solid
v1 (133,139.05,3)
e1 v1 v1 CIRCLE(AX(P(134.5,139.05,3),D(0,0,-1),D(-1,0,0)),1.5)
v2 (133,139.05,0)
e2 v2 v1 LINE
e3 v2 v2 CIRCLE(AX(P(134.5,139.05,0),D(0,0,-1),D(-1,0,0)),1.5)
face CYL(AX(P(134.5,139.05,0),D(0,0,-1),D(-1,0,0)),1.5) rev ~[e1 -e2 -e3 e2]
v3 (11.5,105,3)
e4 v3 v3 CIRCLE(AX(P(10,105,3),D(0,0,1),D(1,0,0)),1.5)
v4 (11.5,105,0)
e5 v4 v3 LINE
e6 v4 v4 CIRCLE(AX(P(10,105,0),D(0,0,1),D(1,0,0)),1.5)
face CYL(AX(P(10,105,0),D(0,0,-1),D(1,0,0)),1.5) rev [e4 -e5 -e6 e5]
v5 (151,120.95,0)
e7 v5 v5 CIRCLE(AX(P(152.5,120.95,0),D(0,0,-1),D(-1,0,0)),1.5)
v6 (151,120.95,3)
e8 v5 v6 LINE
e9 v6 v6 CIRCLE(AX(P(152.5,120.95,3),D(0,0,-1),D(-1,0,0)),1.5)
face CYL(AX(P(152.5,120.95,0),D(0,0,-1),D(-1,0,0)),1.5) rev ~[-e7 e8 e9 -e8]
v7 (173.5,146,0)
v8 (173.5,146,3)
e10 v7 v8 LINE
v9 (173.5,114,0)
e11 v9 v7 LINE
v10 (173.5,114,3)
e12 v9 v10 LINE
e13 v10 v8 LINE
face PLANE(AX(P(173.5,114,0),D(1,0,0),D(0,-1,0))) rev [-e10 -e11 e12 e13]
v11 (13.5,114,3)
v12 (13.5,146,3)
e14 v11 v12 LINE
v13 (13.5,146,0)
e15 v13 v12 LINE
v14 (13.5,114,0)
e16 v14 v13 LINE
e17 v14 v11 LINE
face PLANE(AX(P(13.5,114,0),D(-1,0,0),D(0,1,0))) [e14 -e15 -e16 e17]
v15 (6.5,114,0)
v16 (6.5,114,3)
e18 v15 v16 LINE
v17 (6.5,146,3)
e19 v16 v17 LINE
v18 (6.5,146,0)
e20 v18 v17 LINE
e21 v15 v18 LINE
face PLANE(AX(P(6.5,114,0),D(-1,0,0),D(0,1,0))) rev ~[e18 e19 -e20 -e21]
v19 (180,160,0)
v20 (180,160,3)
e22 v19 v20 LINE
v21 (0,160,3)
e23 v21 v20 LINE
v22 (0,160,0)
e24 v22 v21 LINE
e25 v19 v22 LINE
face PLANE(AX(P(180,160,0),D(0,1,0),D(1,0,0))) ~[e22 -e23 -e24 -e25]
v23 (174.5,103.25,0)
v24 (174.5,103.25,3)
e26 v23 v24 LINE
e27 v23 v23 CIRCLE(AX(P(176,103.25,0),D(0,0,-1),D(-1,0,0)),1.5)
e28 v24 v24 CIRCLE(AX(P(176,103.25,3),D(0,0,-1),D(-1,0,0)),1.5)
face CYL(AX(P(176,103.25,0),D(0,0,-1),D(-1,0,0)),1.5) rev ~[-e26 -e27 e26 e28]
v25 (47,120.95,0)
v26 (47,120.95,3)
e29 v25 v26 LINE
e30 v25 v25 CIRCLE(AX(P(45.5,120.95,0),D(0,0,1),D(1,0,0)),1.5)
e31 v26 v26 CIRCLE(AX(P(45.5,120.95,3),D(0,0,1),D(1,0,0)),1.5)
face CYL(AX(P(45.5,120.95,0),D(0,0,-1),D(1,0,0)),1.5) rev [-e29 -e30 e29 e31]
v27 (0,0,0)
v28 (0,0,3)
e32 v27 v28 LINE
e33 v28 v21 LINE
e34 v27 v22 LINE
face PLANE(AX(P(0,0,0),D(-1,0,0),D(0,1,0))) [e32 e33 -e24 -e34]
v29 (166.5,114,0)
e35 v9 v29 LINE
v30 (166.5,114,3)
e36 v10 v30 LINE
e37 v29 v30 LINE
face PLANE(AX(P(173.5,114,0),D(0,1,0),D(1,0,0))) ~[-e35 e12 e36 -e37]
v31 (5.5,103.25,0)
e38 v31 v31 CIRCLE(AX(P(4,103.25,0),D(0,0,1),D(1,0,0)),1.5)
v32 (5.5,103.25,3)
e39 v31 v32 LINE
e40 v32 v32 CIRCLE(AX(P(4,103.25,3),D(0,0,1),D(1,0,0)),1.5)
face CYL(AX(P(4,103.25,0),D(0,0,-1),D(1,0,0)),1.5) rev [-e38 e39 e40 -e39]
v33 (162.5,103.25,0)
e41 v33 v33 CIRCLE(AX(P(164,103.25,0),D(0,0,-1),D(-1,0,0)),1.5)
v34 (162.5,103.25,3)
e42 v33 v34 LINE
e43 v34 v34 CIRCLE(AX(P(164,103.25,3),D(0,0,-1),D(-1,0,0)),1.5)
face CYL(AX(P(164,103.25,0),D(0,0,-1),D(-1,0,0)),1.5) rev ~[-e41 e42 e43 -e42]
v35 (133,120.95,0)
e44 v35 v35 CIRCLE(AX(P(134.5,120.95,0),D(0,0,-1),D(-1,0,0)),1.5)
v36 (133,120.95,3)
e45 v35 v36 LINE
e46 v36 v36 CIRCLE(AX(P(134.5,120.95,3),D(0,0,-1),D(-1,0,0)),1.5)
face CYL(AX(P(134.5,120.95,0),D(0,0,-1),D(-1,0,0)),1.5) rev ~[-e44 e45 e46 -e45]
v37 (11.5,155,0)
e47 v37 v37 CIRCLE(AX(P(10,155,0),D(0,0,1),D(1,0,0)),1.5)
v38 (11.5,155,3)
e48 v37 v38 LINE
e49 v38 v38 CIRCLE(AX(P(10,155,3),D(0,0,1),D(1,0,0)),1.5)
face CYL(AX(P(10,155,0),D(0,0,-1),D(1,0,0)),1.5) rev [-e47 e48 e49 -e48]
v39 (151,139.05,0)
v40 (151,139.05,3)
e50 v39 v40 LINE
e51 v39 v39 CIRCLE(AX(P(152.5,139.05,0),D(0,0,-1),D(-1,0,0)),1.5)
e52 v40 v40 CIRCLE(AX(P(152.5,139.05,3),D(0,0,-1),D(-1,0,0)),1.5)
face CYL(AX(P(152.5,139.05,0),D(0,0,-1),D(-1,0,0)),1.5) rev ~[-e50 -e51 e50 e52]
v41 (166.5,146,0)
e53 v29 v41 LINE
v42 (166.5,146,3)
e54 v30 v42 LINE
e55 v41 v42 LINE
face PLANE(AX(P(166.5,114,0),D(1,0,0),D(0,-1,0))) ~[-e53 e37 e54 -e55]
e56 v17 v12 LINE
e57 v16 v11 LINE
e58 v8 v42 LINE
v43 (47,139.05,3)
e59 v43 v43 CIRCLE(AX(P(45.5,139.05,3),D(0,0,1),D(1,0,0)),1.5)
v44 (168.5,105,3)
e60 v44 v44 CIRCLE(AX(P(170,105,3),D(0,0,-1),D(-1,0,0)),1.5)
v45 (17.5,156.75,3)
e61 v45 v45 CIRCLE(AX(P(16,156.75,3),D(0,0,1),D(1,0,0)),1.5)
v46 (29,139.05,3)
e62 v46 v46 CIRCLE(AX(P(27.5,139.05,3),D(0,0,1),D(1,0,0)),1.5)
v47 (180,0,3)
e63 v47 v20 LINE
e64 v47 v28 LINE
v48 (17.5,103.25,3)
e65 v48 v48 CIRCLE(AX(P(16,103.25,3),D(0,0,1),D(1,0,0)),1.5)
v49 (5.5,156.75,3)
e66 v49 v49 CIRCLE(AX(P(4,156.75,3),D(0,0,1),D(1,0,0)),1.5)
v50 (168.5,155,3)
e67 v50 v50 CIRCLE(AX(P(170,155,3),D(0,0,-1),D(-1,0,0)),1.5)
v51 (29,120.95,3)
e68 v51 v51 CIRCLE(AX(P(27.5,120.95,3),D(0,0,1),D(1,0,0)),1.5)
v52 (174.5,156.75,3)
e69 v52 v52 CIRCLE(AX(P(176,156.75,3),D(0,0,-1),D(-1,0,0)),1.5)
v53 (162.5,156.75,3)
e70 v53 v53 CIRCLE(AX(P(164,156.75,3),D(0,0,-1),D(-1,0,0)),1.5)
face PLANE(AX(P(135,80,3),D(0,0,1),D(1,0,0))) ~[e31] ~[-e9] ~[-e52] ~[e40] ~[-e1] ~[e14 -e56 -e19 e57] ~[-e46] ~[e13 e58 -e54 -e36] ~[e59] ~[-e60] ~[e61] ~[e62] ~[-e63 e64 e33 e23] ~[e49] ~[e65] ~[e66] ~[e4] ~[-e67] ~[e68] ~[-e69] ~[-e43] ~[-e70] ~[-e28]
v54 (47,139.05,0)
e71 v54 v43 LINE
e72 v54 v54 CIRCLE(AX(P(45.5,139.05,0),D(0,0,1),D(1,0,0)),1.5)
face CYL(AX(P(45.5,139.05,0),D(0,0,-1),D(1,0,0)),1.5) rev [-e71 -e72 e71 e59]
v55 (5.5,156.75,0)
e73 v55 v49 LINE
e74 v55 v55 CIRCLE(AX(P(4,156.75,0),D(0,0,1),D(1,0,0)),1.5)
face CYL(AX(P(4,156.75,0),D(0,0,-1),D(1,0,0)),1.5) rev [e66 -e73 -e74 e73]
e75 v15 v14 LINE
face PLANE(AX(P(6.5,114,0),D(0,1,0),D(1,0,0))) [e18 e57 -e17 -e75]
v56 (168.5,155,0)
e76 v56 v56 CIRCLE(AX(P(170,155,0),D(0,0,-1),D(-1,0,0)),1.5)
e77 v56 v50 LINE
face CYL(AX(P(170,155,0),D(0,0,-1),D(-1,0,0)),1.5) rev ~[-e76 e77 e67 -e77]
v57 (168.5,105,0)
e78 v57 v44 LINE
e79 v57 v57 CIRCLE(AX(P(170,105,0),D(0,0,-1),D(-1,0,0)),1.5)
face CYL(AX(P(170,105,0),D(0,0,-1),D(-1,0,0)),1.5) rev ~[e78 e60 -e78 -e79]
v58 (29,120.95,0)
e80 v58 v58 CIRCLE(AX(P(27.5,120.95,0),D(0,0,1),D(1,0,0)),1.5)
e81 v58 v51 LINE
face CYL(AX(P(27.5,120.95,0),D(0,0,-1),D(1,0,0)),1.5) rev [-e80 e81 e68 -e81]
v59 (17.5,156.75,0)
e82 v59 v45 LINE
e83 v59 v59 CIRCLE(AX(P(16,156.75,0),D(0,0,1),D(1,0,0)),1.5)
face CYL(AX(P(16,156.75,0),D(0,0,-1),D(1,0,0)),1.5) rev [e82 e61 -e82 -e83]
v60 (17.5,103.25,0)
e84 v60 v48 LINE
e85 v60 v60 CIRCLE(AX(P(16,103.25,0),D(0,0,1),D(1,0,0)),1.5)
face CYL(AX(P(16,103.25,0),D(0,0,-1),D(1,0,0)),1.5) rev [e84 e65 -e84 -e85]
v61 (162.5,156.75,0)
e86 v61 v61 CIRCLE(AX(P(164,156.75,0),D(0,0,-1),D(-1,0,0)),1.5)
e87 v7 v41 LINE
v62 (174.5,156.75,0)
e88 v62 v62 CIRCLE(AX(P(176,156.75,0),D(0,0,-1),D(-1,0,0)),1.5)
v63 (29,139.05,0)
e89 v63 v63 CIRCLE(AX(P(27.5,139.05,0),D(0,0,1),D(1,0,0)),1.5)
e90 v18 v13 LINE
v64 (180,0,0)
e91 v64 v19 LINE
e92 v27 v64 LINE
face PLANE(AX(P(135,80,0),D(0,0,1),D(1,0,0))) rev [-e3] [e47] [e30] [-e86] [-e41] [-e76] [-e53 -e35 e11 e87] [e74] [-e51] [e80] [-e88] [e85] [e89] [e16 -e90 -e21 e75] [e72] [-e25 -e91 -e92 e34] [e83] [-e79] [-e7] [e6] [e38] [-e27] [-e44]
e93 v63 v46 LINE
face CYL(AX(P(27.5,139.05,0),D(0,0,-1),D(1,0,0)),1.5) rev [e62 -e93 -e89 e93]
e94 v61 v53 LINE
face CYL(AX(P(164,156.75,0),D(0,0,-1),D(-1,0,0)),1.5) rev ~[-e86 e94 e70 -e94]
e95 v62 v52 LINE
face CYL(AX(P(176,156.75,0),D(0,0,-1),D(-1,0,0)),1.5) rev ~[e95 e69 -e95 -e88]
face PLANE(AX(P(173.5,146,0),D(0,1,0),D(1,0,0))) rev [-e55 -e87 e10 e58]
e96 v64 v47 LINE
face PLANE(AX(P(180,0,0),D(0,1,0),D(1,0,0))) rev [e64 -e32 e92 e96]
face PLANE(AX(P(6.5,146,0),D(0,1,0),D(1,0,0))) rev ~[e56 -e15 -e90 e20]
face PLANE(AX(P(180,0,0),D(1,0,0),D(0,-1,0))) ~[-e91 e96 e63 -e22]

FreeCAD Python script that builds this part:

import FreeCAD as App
import Part
import Sketcher
Q = App.Units.Quantity

doc = App.newDocument("Part")
params = doc.addObject("Spreadsheet::Sheet", "Params")
for row, (alias, value) in enumerate([
    ("sketch1_diameter", "3 mm"),
    ("sketch1_width", "90 mm"),
    ("sketch1_width2", "7 mm"),
    ("sketch1_height", "160 mm"),
    ("sketch1_height2", "32 mm"),
    ("pad1_length", "3 mm"),
], start=1):
    params.set(f"A{row}", alias)
    params.set(f"B{row}", "=" + value)
    params.setAlias(f"B{row}", alias)

body = doc.addObject("PartDesign::Body", "Body")

# Sketch on XY plane
sketch1 = body.newObject("Sketcher::SketchObject", "Sketch")
sketch1.AttachmentSupport = (doc.getObject("XY_Plane"), [""])
sketch1.MapMode = "FlatFace"
sketch1.addGeometry(Part.LineSegment(App.Vector(0, 160, 0), App.Vector(0, 0, 0)), False)
sketch1.addGeometry(Part.LineSegment(App.Vector(0, 0, 0), App.Vector(90, 0, 0)), False)
sketch1.addGeometry(Part.LineSegment(App.Vector(90, 0, 0), App.Vector(90, 160, 0)), False)
sketch1.addGeometry(Part.LineSegment(App.Vector(90, 160, 0), App.Vector(0, 160, 0)), False)
sketch1.addGeometry(Part.Circle(App.Vector(4, 103.2, 0), App.Vector(0, 0, 1), 1.5), False)
sketch1.addGeometry(Part.Circle(App.Vector(10, 105, 0), App.Vector(0, 0, 1), 1.5), False)
sketch1.addGeometry(Part.Circle(App.Vector(16, 103.2, 0), App.Vector(0, 0, 1), 1.5), False)
sketch1.addGeometry(Part.Circle(App.Vector(27.5, 121, 0), App.Vector(0, 0, 1), 1.5), False)
sketch1.addGeometry(Part.Circle(App.Vector(45.5, 121, 0), App.Vector(0, 0, 1), 1.5), False)
sketch1.addGeometry(Part.LineSegment(App.Vector(13.5, 114, 0), App.Vector(6.5, 114, 0)), False)
sketch1.addGeometry(Part.LineSegment(App.Vector(6.5, 114, 0), App.Vector(6.5, 146, 0)), False)
sketch1.addGeometry(Part.LineSegment(App.Vector(6.5, 146, 0), App.Vector(13.5, 146, 0)), False)
sketch1.addGeometry(Part.LineSegment(App.Vector(13.5, 146, 0), App.Vector(13.5, 114, 0)), False)
sketch1.addGeometry(Part.Circle(App.Vector(4, 156.8, 0), App.Vector(0, 0, 1), 1.5), False)
sketch1.addGeometry(Part.Circle(App.Vector(10, 155, 0), App.Vector(0, 0, 1), 1.5), False)
sketch1.addGeometry(Part.Circle(App.Vector(16, 156.8, 0), App.Vector(0, 0, 1), 1.5), False)
sketch1.addGeometry(Part.Circle(App.Vector(27.5, 139.1, 0), App.Vector(0, 0, 1), 1.5), False)
sketch1.addGeometry(Part.Circle(App.Vector(45.5, 139.1, 0), App.Vector(0, 0, 1), 1.5), False)
sketch1.addConstraint(Sketcher.Constraint("Coincident", 0, 2, 1, 1))
sketch1.addConstraint(Sketcher.Constraint("Coincident", 1, 2, 2, 1))
sketch1.addConstraint(Sketcher.Constraint("Coincident", 2, 2, 3, 1))
sketch1.addConstraint(Sketcher.Constraint("Coincident", 3, 2, 0, 1))
sketch1.addConstraint(Sketcher.Constraint("Coincident", 9, 2, 10, 1))
sketch1.addConstraint(Sketcher.Constraint("Coincident", 10, 2, 11, 1))
sketch1.addConstraint(Sketcher.Constraint("Coincident", 11, 2, 12, 1))
sketch1.addConstraint(Sketcher.Constraint("Coincident", 12, 2, 9, 1))
sketch1.addConstraint(Sketcher.Constraint("Vertical", 0))
sketch1.addConstraint(Sketcher.Constraint("Horizontal", 1))
sketch1.addConstraint(Sketcher.Constraint("Vertical", 2))
sketch1.addConstraint(Sketcher.Constraint("Horizontal", 3))
sketch1.addConstraint(Sketcher.Constraint("Horizontal", 9))
sketch1.addConstraint(Sketcher.Constraint("Vertical", 10))
sketch1.addConstraint(Sketcher.Constraint("Horizontal", 11))
sketch1.addConstraint(Sketcher.Constraint("Vertical", 12))
sketch1.addConstraint(Sketcher.Constraint("Coincident", 0, 2, -1, 1))
sketch1.addConstraint(Sketcher.Constraint("Equal", 4, 5))
sketch1.addConstraint(Sketcher.Constraint("Equal", 5, 6))
sketch1.addConstraint(Sketcher.Constraint("Equal", 6, 7))
sketch1.addConstraint(Sketcher.Constraint("Equal", 7, 8))
sketch1.addConstraint(Sketcher.Constraint("Equal", 8, 13))
sketch1.addConstraint(Sketcher.Constraint("Equal", 13, 14))
sketch1.addConstraint(Sketcher.Constraint("Equal", 14, 15))
sketch1.addConstraint(Sketcher.Constraint("Equal", 15, 16))
sketch1.addConstraint(Sketcher.Constraint("Equal", 16, 17))
sketch1.addConstraint(Sketcher.Constraint("Horizontal", 4, 3, 6, 3))
sketch1.addConstraint(Sketcher.Constraint("Horizontal", 7, 3, 8, 3))
sketch1.addConstraint(Sketcher.Constraint("Horizontal", 13, 3, 15, 3))
sketch1.addConstraint(Sketcher.Constraint("Horizontal", 16, 3, 17, 3))
sketch1.addConstraint(Sketcher.Constraint("Vertical", 4, 3, 13, 3))
sketch1.addConstraint(Sketcher.Constraint("Vertical", 5, 3, 14, 3))
sketch1.addConstraint(Sketcher.Constraint("Vertical", 6, 3, 15, 3))
sketch1.addConstraint(Sketcher.Constraint("Vertical", 7, 3, 16, 3))
sketch1.addConstraint(Sketcher.Constraint("Vertical", 8, 3, 17, 3))
sketch1.addConstraint(Sketcher.Constraint("Diameter", 4, Q("3 mm")))
sketch1.addConstraint(Sketcher.Constraint("DistanceX", 1, 1, 1, 2, Q("90 mm")))
sketch1.addConstraint(Sketcher.Constraint("DistanceX", 9, 2, 9, 1, Q("7 mm")))
sketch1.addConstraint(Sketcher.Constraint("DistanceY", 0, 2, 0, 1, Q("160 mm")))
sketch1.addConstraint(Sketcher.Constraint("DistanceY", 10, 1, 10, 2, Q("32 mm")))
sketch1.addConstraint(Sketcher.Constraint("DistanceX", -1, 1, 4, 3, Q("4 mm")))
sketch1.addConstraint(Sketcher.Constraint("DistanceX", -1, 1, 5, 3, Q("10 mm")))
sketch1.addConstraint(Sketcher.Constraint("DistanceY", -1, 1, 5, 3, Q("105 mm")))
sketch1.addConstraint(Sketcher.Constraint("DistanceX", -1, 1, 6, 3, Q("16 mm")))
sketch1.addConstraint(Sketcher.Constraint("DistanceY", -1, 1, 14, 3, Q("155 mm")))
sketch1.addConstraint(Sketcher.Constraint("DistanceY", -1, 1, 9, 2, Q("114 mm")))
sketch1.addConstraint(Sketcher.Constraint("DistanceX", 7, 3, 8, 3, Q("18 mm")))
sketch1.addConstraint(Sketcher.Constraint("DistanceX", 9, 2, 7, 3, Q("21 mm")))
sketch1.addConstraint(Sketcher.Constraint("DistanceX", -1, 1, 7, 3, Q("27.5 mm")))
sketch1.addConstraint(Sketcher.Constraint("DistanceY", 6, 3, 7, 3, Q("17.7 mm")))
sketch1.addConstraint(Sketcher.Constraint("DistanceY", 7, 3, 13, 3, Q("35.8 mm")))
sketch1.addConstraint(Sketcher.Constraint("DistanceY", 7, 3, 16, 3, Q("18.1 mm")))
sketch1.addConstraint(Sketcher.Constraint("DistanceY", -1, 1, 4, 3, Q("103.25 mm")))
sketch1.setExpression("Constraints[35]", "Params.sketch1_diameter")
sketch1.setExpression("Constraints[36]", "Params.sketch1_width")
sketch1.setExpression("Constraints[37]", "Params.sketch1_width2")
sketch1.setExpression("Constraints[38]", "Params.sketch1_height")
sketch1.setExpression("Constraints[39]", "Params.sketch1_height2")
pad1 = body.newObject("PartDesign::Pad", "Pad")
pad1.Profile = sketch1
pad1.setExpression("Length", "Params.pad1_length")
doc.recompute()

datumplane = body.newObject("PartDesign::Plane", "DatumPlane")
datumplane.AttachmentSupport = (doc.getObject("YZ_Plane"), [""])
datumplane.MapMode = "FlatFace"
datumplane.AttachmentOffset = App.Placement(App.Vector(0, 0, 90), App.Rotation())
mirrored = body.newObject("PartDesign::Mirrored", "Mirrored")
mirrored.Originals = [pad1]
mirrored.MirrorPlane = (datumplane, [""])
body.Tip = mirrored

doc.recompute()
